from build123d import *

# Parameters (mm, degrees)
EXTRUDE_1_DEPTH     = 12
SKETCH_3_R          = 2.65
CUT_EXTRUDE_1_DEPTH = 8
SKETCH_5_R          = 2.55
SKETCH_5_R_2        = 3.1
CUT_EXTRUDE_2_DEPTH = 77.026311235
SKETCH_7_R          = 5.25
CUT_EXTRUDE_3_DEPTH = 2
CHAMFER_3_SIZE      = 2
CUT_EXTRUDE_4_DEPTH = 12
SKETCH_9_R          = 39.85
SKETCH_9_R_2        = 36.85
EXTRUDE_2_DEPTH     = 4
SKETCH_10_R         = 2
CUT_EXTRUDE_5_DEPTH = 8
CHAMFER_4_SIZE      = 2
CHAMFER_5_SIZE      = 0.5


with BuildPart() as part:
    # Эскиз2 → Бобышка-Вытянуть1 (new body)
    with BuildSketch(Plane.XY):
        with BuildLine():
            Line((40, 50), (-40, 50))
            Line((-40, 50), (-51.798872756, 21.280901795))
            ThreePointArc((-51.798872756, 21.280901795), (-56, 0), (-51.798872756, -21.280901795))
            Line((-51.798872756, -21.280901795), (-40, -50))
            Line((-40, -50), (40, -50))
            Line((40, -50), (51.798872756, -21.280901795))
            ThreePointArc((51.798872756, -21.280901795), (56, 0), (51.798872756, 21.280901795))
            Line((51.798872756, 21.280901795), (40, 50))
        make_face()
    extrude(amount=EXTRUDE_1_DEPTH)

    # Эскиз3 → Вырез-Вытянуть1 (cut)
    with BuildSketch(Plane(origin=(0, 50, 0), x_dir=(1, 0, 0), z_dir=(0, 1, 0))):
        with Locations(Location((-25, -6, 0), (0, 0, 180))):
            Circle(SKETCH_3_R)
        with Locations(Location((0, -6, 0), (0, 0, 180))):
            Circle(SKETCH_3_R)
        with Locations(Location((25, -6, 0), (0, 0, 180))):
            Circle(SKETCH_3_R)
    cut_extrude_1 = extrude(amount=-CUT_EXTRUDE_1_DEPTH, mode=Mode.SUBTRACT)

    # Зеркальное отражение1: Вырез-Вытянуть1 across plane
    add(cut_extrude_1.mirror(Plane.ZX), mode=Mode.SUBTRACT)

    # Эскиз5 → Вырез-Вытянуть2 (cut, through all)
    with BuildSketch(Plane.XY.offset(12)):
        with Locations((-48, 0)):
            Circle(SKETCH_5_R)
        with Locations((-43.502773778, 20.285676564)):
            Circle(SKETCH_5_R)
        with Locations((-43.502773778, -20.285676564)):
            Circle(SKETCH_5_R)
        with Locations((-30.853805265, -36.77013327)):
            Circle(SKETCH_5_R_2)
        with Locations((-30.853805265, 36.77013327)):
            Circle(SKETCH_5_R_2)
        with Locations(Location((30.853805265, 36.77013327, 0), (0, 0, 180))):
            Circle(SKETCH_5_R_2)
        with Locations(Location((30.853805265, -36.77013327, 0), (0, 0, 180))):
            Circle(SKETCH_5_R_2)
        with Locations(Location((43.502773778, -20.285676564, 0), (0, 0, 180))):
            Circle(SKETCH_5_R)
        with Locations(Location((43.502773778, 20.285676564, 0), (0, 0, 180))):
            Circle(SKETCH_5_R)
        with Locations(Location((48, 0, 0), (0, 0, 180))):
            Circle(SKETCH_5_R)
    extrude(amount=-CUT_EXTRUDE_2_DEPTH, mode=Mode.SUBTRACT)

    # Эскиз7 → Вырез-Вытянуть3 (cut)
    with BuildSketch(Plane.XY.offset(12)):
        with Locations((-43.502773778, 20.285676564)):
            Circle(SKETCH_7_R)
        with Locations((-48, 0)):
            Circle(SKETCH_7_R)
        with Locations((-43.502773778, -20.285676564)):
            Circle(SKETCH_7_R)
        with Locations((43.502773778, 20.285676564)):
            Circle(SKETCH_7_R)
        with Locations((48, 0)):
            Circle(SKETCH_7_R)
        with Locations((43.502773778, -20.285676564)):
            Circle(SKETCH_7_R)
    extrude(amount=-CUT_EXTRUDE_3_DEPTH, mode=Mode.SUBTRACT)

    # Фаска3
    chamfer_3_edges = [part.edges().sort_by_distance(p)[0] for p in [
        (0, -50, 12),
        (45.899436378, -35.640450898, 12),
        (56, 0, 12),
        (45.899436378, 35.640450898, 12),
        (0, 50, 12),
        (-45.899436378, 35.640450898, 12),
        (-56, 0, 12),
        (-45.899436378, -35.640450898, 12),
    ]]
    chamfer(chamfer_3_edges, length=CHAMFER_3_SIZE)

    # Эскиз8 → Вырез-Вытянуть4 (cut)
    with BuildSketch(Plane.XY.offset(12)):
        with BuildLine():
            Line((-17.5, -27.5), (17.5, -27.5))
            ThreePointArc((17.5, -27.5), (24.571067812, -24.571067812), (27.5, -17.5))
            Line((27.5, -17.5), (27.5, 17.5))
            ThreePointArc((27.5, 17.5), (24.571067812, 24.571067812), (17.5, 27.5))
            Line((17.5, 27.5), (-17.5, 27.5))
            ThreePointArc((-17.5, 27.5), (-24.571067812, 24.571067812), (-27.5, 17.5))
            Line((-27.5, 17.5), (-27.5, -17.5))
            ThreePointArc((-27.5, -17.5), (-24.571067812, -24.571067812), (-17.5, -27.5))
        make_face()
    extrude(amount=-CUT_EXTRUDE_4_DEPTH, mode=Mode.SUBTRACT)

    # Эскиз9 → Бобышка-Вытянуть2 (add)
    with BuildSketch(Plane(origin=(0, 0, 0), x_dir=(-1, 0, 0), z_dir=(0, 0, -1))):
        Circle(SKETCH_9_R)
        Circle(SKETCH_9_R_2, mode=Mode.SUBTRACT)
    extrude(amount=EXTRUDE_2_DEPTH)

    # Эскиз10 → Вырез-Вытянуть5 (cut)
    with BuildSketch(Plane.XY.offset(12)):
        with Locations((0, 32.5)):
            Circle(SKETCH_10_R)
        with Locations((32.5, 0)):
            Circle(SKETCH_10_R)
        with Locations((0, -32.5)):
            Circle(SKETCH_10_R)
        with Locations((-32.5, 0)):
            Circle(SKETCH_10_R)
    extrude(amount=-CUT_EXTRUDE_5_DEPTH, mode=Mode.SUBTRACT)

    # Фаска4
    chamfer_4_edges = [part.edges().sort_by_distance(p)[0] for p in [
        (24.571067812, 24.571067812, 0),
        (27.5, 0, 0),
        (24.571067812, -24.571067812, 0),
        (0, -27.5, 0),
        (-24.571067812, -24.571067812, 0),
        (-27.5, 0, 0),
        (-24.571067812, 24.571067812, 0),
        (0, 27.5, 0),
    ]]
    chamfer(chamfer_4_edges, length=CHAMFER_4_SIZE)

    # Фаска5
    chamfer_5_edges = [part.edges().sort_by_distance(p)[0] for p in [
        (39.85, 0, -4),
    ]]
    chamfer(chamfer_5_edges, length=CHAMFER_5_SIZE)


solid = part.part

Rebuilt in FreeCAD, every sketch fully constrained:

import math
import FreeCAD as App
import Part
import Sketcher


def edges_at(feature, points):
    """Names of the edges that pass closest to the given points."""
    edges = feature.Shape.Edges
    near = lambda p: min(range(len(edges)), key=lambda i: edges[i].distToShape(Part.Vertex(*p))[0])
    return sorted({f"Edge{near(p) + 1}" for p in points})

doc = App.newDocument("Part")
params = doc.addObject("Spreadsheet::Sheet", "Params")
for row, (alias, value) in enumerate([
    ("sketch1_radius", "56 mm"),
    ("sketch1_width", "80 mm"),
    ("pad1_length", "12 mm"),
    ("sketch2_diameter", "5.3 mm"),
    ("pocket1_length", "8 mm"),
    ("sketch3_diameter", "5.1 mm"),
    ("sketch3_diameter2", "6.2 mm"),
    ("sketch4_diameter", "10.5 mm"),
    ("pocket3_length", "2 mm"),
    ("chamfer_size", "2 mm"),
    ("sketch5_radius", "10 mm"),
    ("sketch5_width", "35 mm"),
    ("pocket4_length", "12 mm"),
    ("sketch6_diameter", "79.7 mm"),
    ("sketch6_diameter2", "73.7 mm"),
    ("pad2_length", "4 mm"),
    ("sketch7_diameter", "4 mm"),
    ("pocket5_length", "8 mm"),
    ("chamfer2_size", "2 mm"),
    ("chamfer3_size", "0.5 mm"),
], start=1):
    params.set(f"A{row}", alias)
    params.set(f"B{row}", "=" + value)
    params.setAlias(f"B{row}", alias)

body = doc.addObject("PartDesign::Body", "Body")

# Sketch on XY plane
sketch1 = body.newObject("Sketcher::SketchObject", "Sketch")
sketch1.AttachmentSupport = (doc.getObject("XY_Plane"), [""])
sketch1.MapMode = "FlatFace"
sketch1.addGeometry([
    Part.LineSegment(App.Vector(40, 50, 0), App.Vector(-40, 50, 0)),  # 0
    Part.LineSegment(App.Vector(-40, 50, 0), App.Vector(-51.798873, 21.280902, 0)),  # 1
    Part.ArcOfCircle(Part.Circle(App.Vector(0, 0, 0), App.Vector(0, 0, 1), 56), math.radians(157.66532), math.radians(202.33468)),  # 2
    Part.LineSegment(App.Vector(-51.798873, -21.280902, 0), App.Vector(-40, -50, 0)),  # 3
    Part.LineSegment(App.Vector(-40, -50, 0), App.Vector(40, -50, 0)),  # 4
    Part.LineSegment(App.Vector(40, -50, 0), App.Vector(51.798873, -21.280902, 0)),  # 5
    Part.ArcOfCircle(Part.Circle(App.Vector(0, 0, 0), App.Vector(0, 0, 1), 56), math.radians(-22.33468), math.radians(22.33468)),  # 6
    Part.LineSegment(App.Vector(51.798873, 21.280902, 0), App.Vector(40, 50, 0)),  # 7
], False)
sketch1.addConstraint([
    Sketcher.Constraint("Coincident", 0, 2, 1, 1),
    Sketcher.Constraint("Tangent", 1, 2, 2, 1),
    Sketcher.Constraint("Tangent", 2, 2, 3, 1),
    Sketcher.Constraint("Coincident", 3, 2, 4, 1),
    Sketcher.Constraint("Coincident", 4, 2, 5, 1),
    Sketcher.Constraint("Tangent", 5, 2, 6, 1),
    Sketcher.Constraint("Tangent", 6, 2, 7, 1),
    Sketcher.Constraint("Coincident", 7, 2, 0, 1),
    Sketcher.Constraint("Horizontal", 0),
    Sketcher.Constraint("Horizontal", 4),
    Sketcher.Constraint("Coincident", 2, 3, -1, 1),
    Sketcher.Constraint("Coincident", 6, 3, -1, 1),
    Sketcher.Constraint("Equal", 2, 6),
    Sketcher.Constraint("Symmetric", 0, 2, 4, 2, -1, 1),
    Sketcher.Constraint("Parallel", 3, 7),
    Sketcher.Constraint("Horizontal", 2, 2, 5, 2),
    Sketcher.Constraint("Radius", 2, 56.0),
    Sketcher.Constraint("DistanceX", 0, 2, 0, 1, 80.0),
    Sketcher.Constraint("DistanceY", -1, 1, 0, 2, 50.0),
])
sketch1.setExpression("Constraints[16]", "Params.sketch1_radius")
sketch1.setExpression("Constraints[17]", "Params.sketch1_width")
pad1 = body.newObject("PartDesign::Pad", "Pad")
pad1.Profile = sketch1
pad1.setExpression("Length", "Params.pad1_length")

# Sketch on XZ plane
sketch2 = body.newObject("Sketcher::SketchObject", "Sketch001")
sketch2.AttachmentSupport = (doc.getObject("XZ_Plane"), [""])
sketch2.MapMode = "FlatFace"
sketch2.AttachmentOffset = App.Placement(App.Vector(0, 0, -50), App.Rotation())
sketch2.addGeometry([
    Part.Circle(App.Vector(-25, 6, 0), App.Vector(0, 0, 1), 2.65),
    Part.Circle(App.Vector(0, 6, 0), App.Vector(0, 0, 1), 2.65),
    Part.Circle(App.Vector(25, 6, 0), App.Vector(0, 0, 1), 2.65),
], False)
sketch2.addConstraint([
    Sketcher.Constraint("Equal", 0, 1),
    Sketcher.Constraint("Equal", 1, 2),
    Sketcher.Constraint("Symmetric", 0, 3, 2, 3, -2),
    Sketcher.Constraint("PointOnObject", 1, 3, -2),
    Sketcher.Constraint("Horizontal", 0, 3, 1, 3),
    Sketcher.Constraint("Diameter", 0, 5.3),
    Sketcher.Constraint("DistanceX", 0, 3, -1, 1, 25.0),
    Sketcher.Constraint("DistanceY", -1, 1, 0, 3, 6.0),
])
sketch2.setExpression("Constraints[5]", "Params.sketch2_diameter")
pocket1 = body.newObject("PartDesign::Pocket", "Pocket")
pocket1.Profile = sketch2
pocket1.setExpression("Length", "Params.pocket1_length")
pocket1.Reversed = True
doc.recompute()

mirrored = body.newObject("PartDesign::Mirrored", "Mirrored")
mirrored.Originals = [pocket1]
mirrored.MirrorPlane = (doc.getObject("XZ_Plane"), [""])
body.Tip = mirrored

# Sketch on XY plane
sketch3 = body.newObject("Sketcher::SketchObject", "Sketch002")
sketch3.AttachmentSupport = (doc.getObject("XY_Plane"), [""])
sketch3.MapMode = "FlatFace"
sketch3.AttachmentOffset = App.Placement(App.Vector(0, 0, 12), App.Rotation())
sketch3.addGeometry([
    Part.Circle(App.Vector(-48, 0, 0), App.Vector(0, 0, 1), 2.55),  # 0
    Part.Circle(App.Vector(-43.502774, 20.285677, 0), App.Vector(0, 0, 1), 2.55),  # 1
    Part.Circle(App.Vector(-43.502774, -20.285677, 0), App.Vector(0, 0, 1), 2.55),  # 2
    Part.Circle(App.Vector(-30.853805, -36.770133, 0), App.Vector(0, 0, 1), 3.1),  # 3
    Part.Circle(App.Vector(-30.853805, 36.770133, 0), App.Vector(0, 0, 1), 3.1),  # 4
    Part.Circle(App.Vector(30.853805, 36.770133, 0), App.Vector(0, 0, 1), 3.1),  # 5
    Part.Circle(App.Vector(30.853805, -36.770133, 0), App.Vector(0, 0, 1), 3.1),  # 6
    Part.Circle(App.Vector(43.502774, -20.285677, 0), App.Vector(0, 0, 1), 2.55),  # 7
    Part.Circle(App.Vector(43.502774, 20.285677, 0), App.Vector(0, 0, 1), 2.55),  # 8
    Part.Circle(App.Vector(48, 0, 0), App.Vector(0, 0, 1), 2.55),  # 9
], False)
sketch3.addConstraint([
    Sketcher.Constraint("Equal", 0, 1),
    Sketcher.Constraint("Equal", 1, 2),
    Sketcher.Constraint("Equal", 3, 4),
    Sketcher.Constraint("Equal", 4, 5),
    Sketcher.Constraint("Equal", 5, 6),
    Sketcher.Constraint("Equal", 2, 7),
    Sketcher.Constraint("Equal", 7, 8),
    Sketcher.Constraint("Equal", 8, 9),
    Sketcher.Constraint("Symmetric", 3, 3, 5, 3, -1, 1),
    Sketcher.Constraint("Symmetric", 4, 3, 6, 3, -1, 1),
    Sketcher.Constraint("Symmetric", 1, 3, 7, 3, -1, 1),
    Sketcher.Constraint("Symmetric", 2, 3, 8, 3, -1, 1),
    Sketcher.Constraint("Symmetric", 0, 3, 9, 3, -1, 1),
    Sketcher.Constraint("Symmetric", 4, 3, 5, 3, -2),
    Sketcher.Constraint("Symmetric", 2, 3, 7, 3, -2),
    Sketcher.Constraint("PointOnObject", 0, 3, -1),
    Sketcher.Constraint("Diameter", 0, 5.1),
    Sketcher.Constraint("Diameter", 3, 6.2),
    Sketcher.Constraint("DistanceX", 0, 3, -1, 1, 48.0),
    Sketcher.Constraint("DistanceX", 2, 3, 3, 3, 12.648969),
    Sketcher.Constraint("DistanceY", 3, 3, 1, 3, 57.05581),
    Sketcher.Constraint("DistanceX", 4, 3, 5, 3, 61.707611),
    Sketcher.Constraint("DistanceY", -1, 1, 1, 3, 20.285677),
])
sketch3.setExpression("Constraints[16]", "Params.sketch3_diameter")
sketch3.setExpression("Constraints[17]", "Params.sketch3_diameter2")
pocket2 = body.newObject("PartDesign::Pocket", "Pocket001")
pocket2.Profile = sketch3
pocket2.Type = "ThroughAll"

# Sketch on XY plane
sketch4 = body.newObject("Sketcher::SketchObject", "Sketch003")
sketch4.AttachmentSupport = (doc.getObject("XY_Plane"), [""])
sketch4.MapMode = "FlatFace"
sketch4.AttachmentOffset = App.Placement(App.Vector(0, 0, 12), App.Rotation())
sketch4.addGeometry([
    Part.Circle(App.Vector(-43.502774, 20.285677, 0), App.Vector(0, 0, 1), 5.25),  # 0
    Part.Circle(App.Vector(-48, 0, 0), App.Vector(0, 0, 1), 5.25),  # 1
    Part.Circle(App.Vector(-43.502774, -20.285677, 0), App.Vector(0, 0, 1), 5.25),  # 2
    Part.Circle(App.Vector(43.502774, 20.285677, 0), App.Vector(0, 0, 1), 5.25),  # 3
    Part.Circle(App.Vector(48, 0, 0), App.Vector(0, 0, 1), 5.25),  # 4
    Part.Circle(App.Vector(43.502774, -20.285677, 0), App.Vector(0, 0, 1), 5.25),  # 5
], False)
sketch4.addConstraint([
    Sketcher.Constraint("Equal", 0, 1),
    Sketcher.Constraint("Equal", 1, 2),
    Sketcher.Constraint("Equal", 2, 3),
    Sketcher.Constraint("Equal", 3, 4),
    Sketcher.Constraint("Equal", 4, 5),
    Sketcher.Constraint("Symmetric", 2, 3, 3, 3, -1, 1),
    Sketcher.Constraint("Symmetric", 1, 3, 4, 3, -1, 1),
    Sketcher.Constraint("Symmetric", 0, 3, 5, 3, -1, 1),
    Sketcher.Constraint("Symmetric", 0, 3, 3, 3, -2),
    Sketcher.Constraint("PointOnObject", 1, 3, -1),
    Sketcher.Constraint("Diameter", 0, 10.5),
    Sketcher.Constraint("DistanceX", 1, 3, -1, 1, 48.0),
    Sketcher.Constraint("DistanceX", 0, 3, -1, 1, 43.502774),
    Sketcher.Constraint("DistanceY", -1, 1, 0, 3, 20.285677),
])
sketch4.setExpression("Constraints[10]", "Params.sketch4_diameter")
pocket3 = body.newObject("PartDesign::Pocket", "Pocket002")
pocket3.Profile = sketch4
pocket3.setExpression("Length", "Params.pocket3_length")
doc.recompute()

chamfer = body.newObject("PartDesign::Chamfer", "Chamfer")
chamfer.Base = (pocket3, edges_at(pocket3, [
    (0, -50, 12),
    (45.899, -35.64, 12),
    (56, 0, 12),
    (45.899, 35.64, 12),
    (0, 50, 12),
    (-45.899, 35.64, 12),
    (-56, 0, 12),
    (-45.899, -35.64, 12),
]))
chamfer.setExpression("Size", "Params.chamfer_size")

# Sketch on XY plane
sketch5 = body.newObject("Sketcher::SketchObject", "Sketch004")
sketch5.AttachmentSupport = (doc.getObject("XY_Plane"), [""])
sketch5.MapMode = "FlatFace"
sketch5.AttachmentOffset = App.Placement(App.Vector(0, 0, 12), App.Rotation())
sketch5.addGeometry([
    Part.LineSegment(App.Vector(-17.5, -27.5, 0), App.Vector(17.5, -27.5, 0)),  # 0
    Part.ArcOfCircle(Part.Circle(App.Vector(17.5, -17.5, 0), App.Vector(0, 0, 1), 10), math.radians(-90), math.radians(0)),  # 1
    Part.LineSegment(App.Vector(27.5, -17.5, 0), App.Vector(27.5, 17.5, 0)),  # 2
    Part.ArcOfCircle(Part.Circle(App.Vector(17.5, 17.5, 0), App.Vector(0, 0, 1), 10), math.radians(0), math.radians(90)),  # 3
    Part.LineSegment(App.Vector(17.5, 27.5, 0), App.Vector(-17.5, 27.5, 0)),  # 4
    Part.ArcOfCircle(Part.Circle(App.Vector(-17.5, 17.5, 0), App.Vector(0, 0, 1), 10), math.radians(90), math.radians(180)),  # 5
    Part.LineSegment(App.Vector(-27.5, 17.5, 0), App.Vector(-27.5, -17.5, 0)),  # 6
    Part.ArcOfCircle(Part.Circle(App.Vector(-17.5, -17.5, 0), App.Vector(0, 0, 1), 10), math.radians(180), math.radians(270)),  # 7
], False)
sketch5.addConstraint([
    Sketcher.Constraint("Tangent", 0, 2, 1, 1),
    Sketcher.Constraint("Tangent", 1, 2, 2, 1),
    Sketcher.Constraint("Tangent", 2, 2, 3, 1),
    Sketcher.Constraint("Tangent", 3, 2, 4, 1),
    Sketcher.Constraint("Tangent", 4, 2, 5, 1),
    Sketcher.Constraint("Tangent", 5, 2, 6, 1),
    Sketcher.Constraint("Tangent", 6, 2, 7, 1),
    Sketcher.Constraint("Tangent", 7, 2, 0, 1),
    Sketcher.Constraint("Horizontal", 0),
    Sketcher.Constraint("Vertical", 2),
    Sketcher.Constraint("Horizontal", 4),
    Sketcher.Constraint("Vertical", 6),
    Sketcher.Constraint("Equal", 1, 3),
    Sketcher.Constraint("Equal", 3, 5),
    Sketcher.Constraint("Equal", 5, 7),
    Sketcher.Constraint("Symmetric", 1, 3, 5, 3, -1, 1),
    Sketcher.Constraint("Equal", 4, 2),
    Sketcher.Constraint("Radius", 1, 10.0),
    Sketcher.Constraint("DistanceX", 0, 1, 0, 2, 35.0),
])
sketch5.setExpression("Constraints[17]", "Params.sketch5_radius")
sketch5.setExpression("Constraints[18]", "Params.sketch5_width")
pocket4 = body.newObject("PartDesign::Pocket", "Pocket003")
pocket4.Profile = sketch5
pocket4.setExpression("Length", "Params.pocket4_length")

# Sketch on XY plane
sketch6 = body.newObject("Sketcher::SketchObject", "Sketch005")
sketch6.AttachmentSupport = (doc.getObject("XY_Plane"), [""])
sketch6.MapMode = "FlatFace"
sketch6.addGeometry([
    Part.Circle(App.Vector(0, 0, 0), App.Vector(0, 0, 1), 39.85),
    Part.Circle(App.Vector(0, 0, 0), App.Vector(0, 0, 1), 36.85),
], False)
sketch6.addConstraint([
    Sketcher.Constraint("Coincident", 0, 3, -1, 1),
    Sketcher.Constraint("Coincident", 1, 3, -1, 1),
    Sketcher.Constraint("Diameter", 0, 79.7),
    Sketcher.Constraint("Diameter", 1, 73.7),
])
sketch6.setExpression("Constraints[2]", "Params.sketch6_diameter")
sketch6.setExpression("Constraints[3]", "Params.sketch6_diameter2")
pad2 = body.newObject("PartDesign::Pad", "Pad001")
pad2.Profile = sketch6
pad2.setExpression("Length", "Params.pad2_length")
pad2.Reversed = True

# Sketch on XY plane
sketch7 = body.newObject("Sketcher::SketchObject", "Sketch006")
sketch7.AttachmentSupport = (doc.getObject("XY_Plane"), [""])
sketch7.MapMode = "FlatFace"
sketch7.AttachmentOffset = App.Placement(App.Vector(0, 0, 12), App.Rotation())
sketch7.addGeometry([
    Part.Circle(App.Vector(0, 32.5, 0), App.Vector(0, 0, 1), 2),
    Part.Circle(App.Vector(32.5, 0, 0), App.Vector(0, 0, 1), 2),
    Part.Circle(App.Vector(0, -32.5, 0), App.Vector(0, 0, 1), 2),
    Part.Circle(App.Vector(-32.5, 0, 0), App.Vector(0, 0, 1), 2),
], False)
sketch7.addConstraint([
    Sketcher.Constraint("Equal", 0, 1),
    Sketcher.Constraint("Equal", 1, 2),
    Sketcher.Constraint("Equal", 2, 3),
    Sketcher.Constraint("Symmetric", 0, 3, 2, 3, -1, 1),
    Sketcher.Constraint("Symmetric", 1, 3, 3, 3, -1, 1),
    Sketcher.Constraint("PointOnObject", 0, 3, -2),
    Sketcher.Constraint("PointOnObject", 1, 3, -1),
    Sketcher.Constraint("Diameter", 0, 4.0),
    Sketcher.Constraint("DistanceY", 2, 3, 0, 3, 65.0),
    Sketcher.Constraint("DistanceX", 3, 3, 1, 3, 65.0),
])
sketch7.setExpression("Constraints[7]", "Params.sketch7_diameter")
pocket5 = body.newObject("PartDesign::Pocket", "Pocket004")
pocket5.Profile = sketch7
pocket5.setExpression("Length", "Params.pocket5_length")
doc.recompute()

chamfer2 = body.newObject("PartDesign::Chamfer", "Chamfer001")
chamfer2.Base = (pocket5, edges_at(pocket5, [
    (24.571, 24.571, 0),
    (27.5, 0, 0),
    (24.571, -24.571, 0),
    (0, -27.5, 0),
    (-24.571, -24.571, 0),
    (-27.5, 0, 0),
    (-24.571, 24.571, 0),
    (0, 27.5, 0),
]))
chamfer2.setExpression("Size", "Params.chamfer2_size")
doc.recompute()

chamfer3 = body.newObject("PartDesign::Chamfer", "Chamfer002")
chamfer3.Base = (chamfer2, edges_at(chamfer2, [(39.85, 0, -4)]))
chamfer3.setExpression("Size", "Params.chamfer3_size")

doc.recompute()
